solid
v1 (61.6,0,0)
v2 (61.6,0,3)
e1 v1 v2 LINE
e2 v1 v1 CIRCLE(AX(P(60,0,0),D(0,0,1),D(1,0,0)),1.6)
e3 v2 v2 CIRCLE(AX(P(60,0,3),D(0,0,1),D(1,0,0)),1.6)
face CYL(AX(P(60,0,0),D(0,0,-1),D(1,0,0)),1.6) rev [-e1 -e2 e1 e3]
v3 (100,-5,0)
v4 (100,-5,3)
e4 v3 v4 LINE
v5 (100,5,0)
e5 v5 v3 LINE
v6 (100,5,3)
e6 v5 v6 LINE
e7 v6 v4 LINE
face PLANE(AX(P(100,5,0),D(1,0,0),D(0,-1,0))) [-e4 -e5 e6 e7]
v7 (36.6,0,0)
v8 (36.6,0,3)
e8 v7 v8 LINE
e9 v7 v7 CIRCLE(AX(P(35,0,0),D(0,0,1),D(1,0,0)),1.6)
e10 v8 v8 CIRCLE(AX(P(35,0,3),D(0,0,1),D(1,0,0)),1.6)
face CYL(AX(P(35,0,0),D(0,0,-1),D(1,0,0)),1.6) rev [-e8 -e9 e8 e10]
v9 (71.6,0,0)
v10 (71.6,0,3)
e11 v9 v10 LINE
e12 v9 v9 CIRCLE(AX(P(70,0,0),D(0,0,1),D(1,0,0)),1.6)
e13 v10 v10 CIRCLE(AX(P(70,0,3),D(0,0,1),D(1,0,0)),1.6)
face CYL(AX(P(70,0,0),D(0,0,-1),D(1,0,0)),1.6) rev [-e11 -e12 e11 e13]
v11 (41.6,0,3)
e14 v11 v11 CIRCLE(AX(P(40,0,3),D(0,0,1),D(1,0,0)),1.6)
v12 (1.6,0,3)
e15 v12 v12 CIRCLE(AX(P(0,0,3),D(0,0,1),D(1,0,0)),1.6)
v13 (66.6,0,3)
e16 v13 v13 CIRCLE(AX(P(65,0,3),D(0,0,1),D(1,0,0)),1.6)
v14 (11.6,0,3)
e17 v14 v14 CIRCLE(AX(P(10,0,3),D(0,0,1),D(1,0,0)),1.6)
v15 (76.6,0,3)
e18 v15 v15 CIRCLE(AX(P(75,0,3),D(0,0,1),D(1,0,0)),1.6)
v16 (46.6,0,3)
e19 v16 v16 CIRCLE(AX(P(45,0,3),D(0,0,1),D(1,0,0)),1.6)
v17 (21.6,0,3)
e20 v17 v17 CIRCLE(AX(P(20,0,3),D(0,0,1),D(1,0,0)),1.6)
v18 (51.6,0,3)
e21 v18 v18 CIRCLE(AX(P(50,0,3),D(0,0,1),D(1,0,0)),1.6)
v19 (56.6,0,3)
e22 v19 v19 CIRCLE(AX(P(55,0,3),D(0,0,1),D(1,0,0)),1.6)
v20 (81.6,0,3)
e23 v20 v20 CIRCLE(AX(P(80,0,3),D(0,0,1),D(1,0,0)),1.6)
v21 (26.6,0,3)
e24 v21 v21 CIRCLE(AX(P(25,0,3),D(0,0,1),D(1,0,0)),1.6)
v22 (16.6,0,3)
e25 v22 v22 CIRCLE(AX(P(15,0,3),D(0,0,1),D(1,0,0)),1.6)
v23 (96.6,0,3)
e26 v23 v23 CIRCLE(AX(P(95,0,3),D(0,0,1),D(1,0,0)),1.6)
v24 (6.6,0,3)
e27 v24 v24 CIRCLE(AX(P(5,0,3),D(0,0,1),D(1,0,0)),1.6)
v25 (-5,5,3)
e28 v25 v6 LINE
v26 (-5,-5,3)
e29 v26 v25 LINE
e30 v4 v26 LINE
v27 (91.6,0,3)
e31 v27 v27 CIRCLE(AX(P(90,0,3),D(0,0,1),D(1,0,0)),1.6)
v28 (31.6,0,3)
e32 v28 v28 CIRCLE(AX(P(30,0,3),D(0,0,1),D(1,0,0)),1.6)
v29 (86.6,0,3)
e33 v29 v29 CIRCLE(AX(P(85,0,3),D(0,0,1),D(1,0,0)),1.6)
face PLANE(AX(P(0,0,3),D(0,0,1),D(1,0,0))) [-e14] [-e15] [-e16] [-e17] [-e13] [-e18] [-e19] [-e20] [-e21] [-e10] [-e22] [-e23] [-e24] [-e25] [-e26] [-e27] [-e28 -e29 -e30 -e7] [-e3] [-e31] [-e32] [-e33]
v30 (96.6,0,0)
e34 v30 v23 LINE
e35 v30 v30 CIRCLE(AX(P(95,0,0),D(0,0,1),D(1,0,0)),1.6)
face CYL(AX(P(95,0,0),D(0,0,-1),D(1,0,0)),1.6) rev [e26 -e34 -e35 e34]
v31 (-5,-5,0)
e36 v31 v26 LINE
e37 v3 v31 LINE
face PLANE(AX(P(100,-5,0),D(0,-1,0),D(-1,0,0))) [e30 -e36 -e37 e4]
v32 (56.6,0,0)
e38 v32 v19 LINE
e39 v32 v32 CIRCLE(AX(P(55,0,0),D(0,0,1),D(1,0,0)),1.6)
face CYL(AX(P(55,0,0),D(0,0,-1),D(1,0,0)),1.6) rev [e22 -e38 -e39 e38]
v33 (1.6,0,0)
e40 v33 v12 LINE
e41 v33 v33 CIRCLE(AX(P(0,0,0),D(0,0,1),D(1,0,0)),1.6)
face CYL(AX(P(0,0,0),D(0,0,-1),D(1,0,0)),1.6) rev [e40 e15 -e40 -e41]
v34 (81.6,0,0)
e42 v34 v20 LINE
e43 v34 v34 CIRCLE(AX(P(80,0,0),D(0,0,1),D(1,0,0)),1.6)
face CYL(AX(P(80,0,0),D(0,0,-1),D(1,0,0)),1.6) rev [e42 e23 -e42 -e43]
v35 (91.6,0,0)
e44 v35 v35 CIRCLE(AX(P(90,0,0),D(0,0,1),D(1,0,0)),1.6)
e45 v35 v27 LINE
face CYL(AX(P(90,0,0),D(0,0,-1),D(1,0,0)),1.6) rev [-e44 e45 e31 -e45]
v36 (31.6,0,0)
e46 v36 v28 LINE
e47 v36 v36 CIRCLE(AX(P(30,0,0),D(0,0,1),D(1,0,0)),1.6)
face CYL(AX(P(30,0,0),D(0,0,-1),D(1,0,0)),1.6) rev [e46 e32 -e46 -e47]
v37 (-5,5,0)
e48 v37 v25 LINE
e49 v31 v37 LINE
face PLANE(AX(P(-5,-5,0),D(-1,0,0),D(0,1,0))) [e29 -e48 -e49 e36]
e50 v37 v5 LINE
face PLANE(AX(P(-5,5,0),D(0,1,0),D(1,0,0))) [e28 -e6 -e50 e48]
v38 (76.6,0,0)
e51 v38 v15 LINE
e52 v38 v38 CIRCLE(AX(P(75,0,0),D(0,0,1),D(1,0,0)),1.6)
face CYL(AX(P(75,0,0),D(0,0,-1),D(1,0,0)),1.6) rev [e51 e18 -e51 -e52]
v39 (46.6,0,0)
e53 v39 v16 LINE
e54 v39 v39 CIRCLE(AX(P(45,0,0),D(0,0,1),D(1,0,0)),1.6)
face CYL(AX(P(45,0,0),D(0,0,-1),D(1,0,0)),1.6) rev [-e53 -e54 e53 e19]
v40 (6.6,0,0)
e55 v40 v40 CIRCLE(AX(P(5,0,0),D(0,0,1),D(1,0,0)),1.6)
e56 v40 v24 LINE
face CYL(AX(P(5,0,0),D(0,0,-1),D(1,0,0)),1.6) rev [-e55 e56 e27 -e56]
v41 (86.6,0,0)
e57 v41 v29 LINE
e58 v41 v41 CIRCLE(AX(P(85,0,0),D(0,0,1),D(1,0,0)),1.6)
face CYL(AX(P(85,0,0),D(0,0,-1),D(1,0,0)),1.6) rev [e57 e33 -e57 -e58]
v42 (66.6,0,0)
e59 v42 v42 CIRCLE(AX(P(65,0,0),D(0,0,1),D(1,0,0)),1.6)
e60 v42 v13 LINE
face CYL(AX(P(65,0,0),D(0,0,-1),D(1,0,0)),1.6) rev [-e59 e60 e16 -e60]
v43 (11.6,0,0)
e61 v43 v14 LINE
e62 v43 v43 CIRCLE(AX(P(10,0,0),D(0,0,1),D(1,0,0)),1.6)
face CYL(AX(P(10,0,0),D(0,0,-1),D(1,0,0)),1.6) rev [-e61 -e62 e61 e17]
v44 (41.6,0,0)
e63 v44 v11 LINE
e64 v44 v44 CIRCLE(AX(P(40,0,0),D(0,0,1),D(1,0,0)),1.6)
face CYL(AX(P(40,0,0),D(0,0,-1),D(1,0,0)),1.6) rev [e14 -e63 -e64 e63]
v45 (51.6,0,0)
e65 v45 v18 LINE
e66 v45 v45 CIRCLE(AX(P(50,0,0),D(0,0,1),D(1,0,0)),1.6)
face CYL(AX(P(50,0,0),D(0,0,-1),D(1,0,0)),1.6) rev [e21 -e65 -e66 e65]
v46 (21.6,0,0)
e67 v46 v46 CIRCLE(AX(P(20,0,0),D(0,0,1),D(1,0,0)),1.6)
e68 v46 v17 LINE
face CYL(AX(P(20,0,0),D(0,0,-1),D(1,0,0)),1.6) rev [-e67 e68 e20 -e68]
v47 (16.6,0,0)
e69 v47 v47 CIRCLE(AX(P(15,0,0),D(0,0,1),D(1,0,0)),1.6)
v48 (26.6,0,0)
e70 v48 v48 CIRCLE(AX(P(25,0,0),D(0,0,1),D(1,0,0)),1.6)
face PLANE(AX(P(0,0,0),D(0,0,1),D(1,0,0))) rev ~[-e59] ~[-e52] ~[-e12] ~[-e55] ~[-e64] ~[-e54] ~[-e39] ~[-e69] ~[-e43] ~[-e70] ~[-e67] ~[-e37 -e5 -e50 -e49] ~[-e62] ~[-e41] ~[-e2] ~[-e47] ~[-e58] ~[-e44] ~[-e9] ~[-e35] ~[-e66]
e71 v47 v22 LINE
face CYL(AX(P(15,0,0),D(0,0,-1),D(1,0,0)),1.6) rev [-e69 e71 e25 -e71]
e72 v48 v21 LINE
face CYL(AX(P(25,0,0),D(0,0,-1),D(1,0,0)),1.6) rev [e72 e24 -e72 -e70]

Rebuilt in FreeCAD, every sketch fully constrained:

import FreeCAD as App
import Part
import Sketcher

V = App.Vector
Q = App.Units.Quantity


def add_polygon(sketch, points):
    """Adds a closed chain of lines whose ends are joined by coincident constraints."""
    first, n = sketch.GeometryCount, len(points)
    for a, b in zip(points, points[1:] + points[:1]):
        sketch.addGeometry(Part.LineSegment(App.Vector(*a, 0), App.Vector(*b, 0)), False)
    for i in range(n):
        sketch.addConstraint(Sketcher.Constraint("Coincident", first + i, 2, first + (i + 1) % n, 1))

doc = App.newDocument("Part")
body = doc.addObject("PartDesign::Body", "Body")

# Sketch on XY plane
sketch1 = body.newObject("Sketcher::SketchObject", "Sketch")
sketch1.AttachmentSupport = (doc.getObject("XY_Plane"), [""])
sketch1.MapMode = "FlatFace"
add_polygon(sketch1, [(100, 5), (-5, 5), (-5, -5), (100, -5)])  # lines 0-3
sketch1.addGeometry(Part.Circle(V(0, 0, 0), V(0, 0, 1), 1.6), False)  # 4
sketch1.addGeometry(Part.Circle(V(5, 0, 0), V(0, 0, 1), 1.6), False)  # 5
sketch1.addGeometry(Part.Circle(V(10, 0, 0), V(0, 0, 1), 1.6), False)  # 6
sketch1.addGeometry(Part.Circle(V(15, 0, 0), V(0, 0, 1), 1.6), False)  # 7
sketch1.addGeometry(Part.Circle(V(20, 0, 0), V(0, 0, 1), 1.6), False)  # 8
sketch1.addGeometry(Part.Circle(V(25, 0, 0), V(0, 0, 1), 1.6), False)  # 9
sketch1.addGeometry(Part.Circle(V(30, 0, 0), V(0, 0, 1), 1.6), False)  # 10
sketch1.addGeometry(Part.Circle(V(35, 0, 0), V(0, 0, 1), 1.6), False)  # 11
sketch1.addGeometry(Part.Circle(V(40, 0, 0), V(0, 0, 1), 1.6), False)  # 12
sketch1.addGeometry(Part.Circle(V(45, 0, 0), V(0, 0, 1), 1.6), False)  # 13
sketch1.addGeometry(Part.Circle(V(50, 0, 0), V(0, 0, 1), 1.6), False)  # 14
sketch1.addGeometry(Part.Circle(V(55, 0, 0), V(0, 0, 1), 1.6), False)  # 15
sketch1.addGeometry(Part.Circle(V(60, 0, 0), V(0, 0, 1), 1.6), False)  # 16
sketch1.addGeometry(Part.Circle(V(65, 0, 0), V(0, 0, 1), 1.6), False)  # 17
sketch1.addGeometry(Part.Circle(V(70, 0, 0), V(0, 0, 1), 1.6), False)  # 18
sketch1.addGeometry(Part.Circle(V(75, 0, 0), V(0, 0, 1), 1.6), False)  # 19
sketch1.addGeometry(Part.Circle(V(80, 0, 0), V(0, 0, 1), 1.6), False)  # 20
sketch1.addGeometry(Part.Circle(V(85, 0, 0), V(0, 0, 1), 1.6), False)  # 21
sketch1.addGeometry(Part.Circle(V(90, 0, 0), V(0, 0, 1), 1.6), False)  # 22
sketch1.addGeometry(Part.Circle(V(95, 0, 0), V(0, 0, 1), 1.6), False)  # 23
sketch1.addConstraint([
    Sketcher.Constraint("Horizontal", 0),
    Sketcher.Constraint("Vertical", 1),
    Sketcher.Constraint("Horizontal", 2),
    Sketcher.Constraint("Vertical", 3),
    Sketcher.Constraint("Coincident", 4, 3, -1, 1),
    Sketcher.Constraint("Equal", 4, 5),
    Sketcher.Constraint("Equal", 5, 6),
    Sketcher.Constraint("Equal", 6, 7),
    Sketcher.Constraint("Equal", 7, 8),
    Sketcher.Constraint("Equal", 8, 9),
    Sketcher.Constraint("Equal", 9, 10),
    Sketcher.Constraint("Equal", 10, 11),
    Sketcher.Constraint("Equal", 11, 12),
    Sketcher.Constraint("Equal", 12, 13),
    Sketcher.Constraint("Equal", 13, 14),
    Sketcher.Constraint("Equal", 14, 15),
    Sketcher.Constraint("Equal", 15, 16),
    Sketcher.Constraint("Equal", 16, 17),
    Sketcher.Constraint("Equal", 17, 18),
    Sketcher.Constraint("Equal", 18, 19),
    Sketcher.Constraint("Equal", 19, 20),
    Sketcher.Constraint("Equal", 20, 21),
    Sketcher.Constraint("Equal", 21, 22),
    Sketcher.Constraint("Equal", 22, 23),
    Sketcher.Constraint("PointOnObject", 5, 3, -1),
    Sketcher.Constraint("PointOnObject", 6, 3, -1),
    Sketcher.Constraint("PointOnObject", 7, 3, -1),
    Sketcher.Constraint("PointOnObject", 8, 3, -1),
    Sketcher.Constraint("PointOnObject", 9, 3, -1),
    Sketcher.Constraint("PointOnObject", 10, 3, -1),
    Sketcher.Constraint("PointOnObject", 11, 3, -1),
    Sketcher.Constraint("PointOnObject", 12, 3, -1),
    Sketcher.Constraint("PointOnObject", 13, 3, -1),
    Sketcher.Constraint("PointOnObject", 14, 3, -1),
    Sketcher.Constraint("PointOnObject", 15, 3, -1),
    Sketcher.Constraint("PointOnObject", 16, 3, -1),
    Sketcher.Constraint("PointOnObject", 17, 3, -1),
    Sketcher.Constraint("PointOnObject", 18, 3, -1),
    Sketcher.Constraint("PointOnObject", 19, 3, -1),
    Sketcher.Constraint("PointOnObject", 20, 3, -1),
    Sketcher.Constraint("PointOnObject", 21, 3, -1),
    Sketcher.Constraint("PointOnObject", 22, 3, -1),
    Sketcher.Constraint("PointOnObject", 23, 3, -1),
    Sketcher.Constraint("Diameter", 4, Q("3.2 mm")),
    Sketcher.Constraint("DistanceX", 0, 2, 0, 1, Q("105 mm")),
    Sketcher.Constraint("DistanceY", 1, 2, 1, 1, Q("10 mm")),
    Sketcher.Constraint("DistanceX", -1, 1, 5, 3, Q("5 mm")),
    Sketcher.Constraint("DistanceX", -1, 1, 6, 3, Q("10 mm")),
    Sketcher.Constraint("DistanceX", 0, 2, -1, 1, Q("5 mm")),
    Sketcher.Constraint("DistanceY", -1, 1, 0, 2, Q("5 mm")),
    Sketcher.Constraint("DistanceX", 6, 3, 7, 3, Q("5 mm")),
    Sketcher.Constraint("DistanceX", 7, 3, 8, 3, Q("5 mm")),
    Sketcher.Constraint("DistanceX", 8, 3, 9, 3, Q("5 mm")),
    Sketcher.Constraint("DistanceX", 9, 3, 10, 3, Q("5 mm")),
    Sketcher.Constraint("DistanceX", 10, 3, 11, 3, Q("5 mm")),
    Sketcher.Constraint("DistanceX", 11, 3, 12, 3, Q("5 mm")),
    Sketcher.Constraint("DistanceX", 12, 3, 13, 3, Q("5 mm")),
    Sketcher.Constraint("DistanceX", 13, 3, 14, 3, Q("5 mm")),
    Sketcher.Constraint("DistanceX", 14, 3, 15, 3, Q("5 mm")),
    Sketcher.Constraint("DistanceX", 15, 3, 16, 3, Q("5 mm")),
    Sketcher.Constraint("DistanceX", 16, 3, 17, 3, Q("5 mm")),
    Sketcher.Constraint("DistanceX", 17, 3, 18, 3, Q("5 mm")),
    Sketcher.Constraint("DistanceX", 18, 3, 19, 3, Q("5 mm")),
    Sketcher.Constraint("DistanceX", 19, 3, 20, 3, Q("5 mm")),
    Sketcher.Constraint("DistanceX", 20, 3, 21, 3, Q("5 mm")),
    Sketcher.Constraint("DistanceX", 21, 3, 22, 3, Q("5 mm")),
    Sketcher.Constraint("DistanceX", 22, 3, 23, 3, Q("5 mm")),
])
pad1 = body.newObject("PartDesign::Pad", "Pad")
pad1.Profile = sketch1
pad1.Length = 3

doc.recompute()
